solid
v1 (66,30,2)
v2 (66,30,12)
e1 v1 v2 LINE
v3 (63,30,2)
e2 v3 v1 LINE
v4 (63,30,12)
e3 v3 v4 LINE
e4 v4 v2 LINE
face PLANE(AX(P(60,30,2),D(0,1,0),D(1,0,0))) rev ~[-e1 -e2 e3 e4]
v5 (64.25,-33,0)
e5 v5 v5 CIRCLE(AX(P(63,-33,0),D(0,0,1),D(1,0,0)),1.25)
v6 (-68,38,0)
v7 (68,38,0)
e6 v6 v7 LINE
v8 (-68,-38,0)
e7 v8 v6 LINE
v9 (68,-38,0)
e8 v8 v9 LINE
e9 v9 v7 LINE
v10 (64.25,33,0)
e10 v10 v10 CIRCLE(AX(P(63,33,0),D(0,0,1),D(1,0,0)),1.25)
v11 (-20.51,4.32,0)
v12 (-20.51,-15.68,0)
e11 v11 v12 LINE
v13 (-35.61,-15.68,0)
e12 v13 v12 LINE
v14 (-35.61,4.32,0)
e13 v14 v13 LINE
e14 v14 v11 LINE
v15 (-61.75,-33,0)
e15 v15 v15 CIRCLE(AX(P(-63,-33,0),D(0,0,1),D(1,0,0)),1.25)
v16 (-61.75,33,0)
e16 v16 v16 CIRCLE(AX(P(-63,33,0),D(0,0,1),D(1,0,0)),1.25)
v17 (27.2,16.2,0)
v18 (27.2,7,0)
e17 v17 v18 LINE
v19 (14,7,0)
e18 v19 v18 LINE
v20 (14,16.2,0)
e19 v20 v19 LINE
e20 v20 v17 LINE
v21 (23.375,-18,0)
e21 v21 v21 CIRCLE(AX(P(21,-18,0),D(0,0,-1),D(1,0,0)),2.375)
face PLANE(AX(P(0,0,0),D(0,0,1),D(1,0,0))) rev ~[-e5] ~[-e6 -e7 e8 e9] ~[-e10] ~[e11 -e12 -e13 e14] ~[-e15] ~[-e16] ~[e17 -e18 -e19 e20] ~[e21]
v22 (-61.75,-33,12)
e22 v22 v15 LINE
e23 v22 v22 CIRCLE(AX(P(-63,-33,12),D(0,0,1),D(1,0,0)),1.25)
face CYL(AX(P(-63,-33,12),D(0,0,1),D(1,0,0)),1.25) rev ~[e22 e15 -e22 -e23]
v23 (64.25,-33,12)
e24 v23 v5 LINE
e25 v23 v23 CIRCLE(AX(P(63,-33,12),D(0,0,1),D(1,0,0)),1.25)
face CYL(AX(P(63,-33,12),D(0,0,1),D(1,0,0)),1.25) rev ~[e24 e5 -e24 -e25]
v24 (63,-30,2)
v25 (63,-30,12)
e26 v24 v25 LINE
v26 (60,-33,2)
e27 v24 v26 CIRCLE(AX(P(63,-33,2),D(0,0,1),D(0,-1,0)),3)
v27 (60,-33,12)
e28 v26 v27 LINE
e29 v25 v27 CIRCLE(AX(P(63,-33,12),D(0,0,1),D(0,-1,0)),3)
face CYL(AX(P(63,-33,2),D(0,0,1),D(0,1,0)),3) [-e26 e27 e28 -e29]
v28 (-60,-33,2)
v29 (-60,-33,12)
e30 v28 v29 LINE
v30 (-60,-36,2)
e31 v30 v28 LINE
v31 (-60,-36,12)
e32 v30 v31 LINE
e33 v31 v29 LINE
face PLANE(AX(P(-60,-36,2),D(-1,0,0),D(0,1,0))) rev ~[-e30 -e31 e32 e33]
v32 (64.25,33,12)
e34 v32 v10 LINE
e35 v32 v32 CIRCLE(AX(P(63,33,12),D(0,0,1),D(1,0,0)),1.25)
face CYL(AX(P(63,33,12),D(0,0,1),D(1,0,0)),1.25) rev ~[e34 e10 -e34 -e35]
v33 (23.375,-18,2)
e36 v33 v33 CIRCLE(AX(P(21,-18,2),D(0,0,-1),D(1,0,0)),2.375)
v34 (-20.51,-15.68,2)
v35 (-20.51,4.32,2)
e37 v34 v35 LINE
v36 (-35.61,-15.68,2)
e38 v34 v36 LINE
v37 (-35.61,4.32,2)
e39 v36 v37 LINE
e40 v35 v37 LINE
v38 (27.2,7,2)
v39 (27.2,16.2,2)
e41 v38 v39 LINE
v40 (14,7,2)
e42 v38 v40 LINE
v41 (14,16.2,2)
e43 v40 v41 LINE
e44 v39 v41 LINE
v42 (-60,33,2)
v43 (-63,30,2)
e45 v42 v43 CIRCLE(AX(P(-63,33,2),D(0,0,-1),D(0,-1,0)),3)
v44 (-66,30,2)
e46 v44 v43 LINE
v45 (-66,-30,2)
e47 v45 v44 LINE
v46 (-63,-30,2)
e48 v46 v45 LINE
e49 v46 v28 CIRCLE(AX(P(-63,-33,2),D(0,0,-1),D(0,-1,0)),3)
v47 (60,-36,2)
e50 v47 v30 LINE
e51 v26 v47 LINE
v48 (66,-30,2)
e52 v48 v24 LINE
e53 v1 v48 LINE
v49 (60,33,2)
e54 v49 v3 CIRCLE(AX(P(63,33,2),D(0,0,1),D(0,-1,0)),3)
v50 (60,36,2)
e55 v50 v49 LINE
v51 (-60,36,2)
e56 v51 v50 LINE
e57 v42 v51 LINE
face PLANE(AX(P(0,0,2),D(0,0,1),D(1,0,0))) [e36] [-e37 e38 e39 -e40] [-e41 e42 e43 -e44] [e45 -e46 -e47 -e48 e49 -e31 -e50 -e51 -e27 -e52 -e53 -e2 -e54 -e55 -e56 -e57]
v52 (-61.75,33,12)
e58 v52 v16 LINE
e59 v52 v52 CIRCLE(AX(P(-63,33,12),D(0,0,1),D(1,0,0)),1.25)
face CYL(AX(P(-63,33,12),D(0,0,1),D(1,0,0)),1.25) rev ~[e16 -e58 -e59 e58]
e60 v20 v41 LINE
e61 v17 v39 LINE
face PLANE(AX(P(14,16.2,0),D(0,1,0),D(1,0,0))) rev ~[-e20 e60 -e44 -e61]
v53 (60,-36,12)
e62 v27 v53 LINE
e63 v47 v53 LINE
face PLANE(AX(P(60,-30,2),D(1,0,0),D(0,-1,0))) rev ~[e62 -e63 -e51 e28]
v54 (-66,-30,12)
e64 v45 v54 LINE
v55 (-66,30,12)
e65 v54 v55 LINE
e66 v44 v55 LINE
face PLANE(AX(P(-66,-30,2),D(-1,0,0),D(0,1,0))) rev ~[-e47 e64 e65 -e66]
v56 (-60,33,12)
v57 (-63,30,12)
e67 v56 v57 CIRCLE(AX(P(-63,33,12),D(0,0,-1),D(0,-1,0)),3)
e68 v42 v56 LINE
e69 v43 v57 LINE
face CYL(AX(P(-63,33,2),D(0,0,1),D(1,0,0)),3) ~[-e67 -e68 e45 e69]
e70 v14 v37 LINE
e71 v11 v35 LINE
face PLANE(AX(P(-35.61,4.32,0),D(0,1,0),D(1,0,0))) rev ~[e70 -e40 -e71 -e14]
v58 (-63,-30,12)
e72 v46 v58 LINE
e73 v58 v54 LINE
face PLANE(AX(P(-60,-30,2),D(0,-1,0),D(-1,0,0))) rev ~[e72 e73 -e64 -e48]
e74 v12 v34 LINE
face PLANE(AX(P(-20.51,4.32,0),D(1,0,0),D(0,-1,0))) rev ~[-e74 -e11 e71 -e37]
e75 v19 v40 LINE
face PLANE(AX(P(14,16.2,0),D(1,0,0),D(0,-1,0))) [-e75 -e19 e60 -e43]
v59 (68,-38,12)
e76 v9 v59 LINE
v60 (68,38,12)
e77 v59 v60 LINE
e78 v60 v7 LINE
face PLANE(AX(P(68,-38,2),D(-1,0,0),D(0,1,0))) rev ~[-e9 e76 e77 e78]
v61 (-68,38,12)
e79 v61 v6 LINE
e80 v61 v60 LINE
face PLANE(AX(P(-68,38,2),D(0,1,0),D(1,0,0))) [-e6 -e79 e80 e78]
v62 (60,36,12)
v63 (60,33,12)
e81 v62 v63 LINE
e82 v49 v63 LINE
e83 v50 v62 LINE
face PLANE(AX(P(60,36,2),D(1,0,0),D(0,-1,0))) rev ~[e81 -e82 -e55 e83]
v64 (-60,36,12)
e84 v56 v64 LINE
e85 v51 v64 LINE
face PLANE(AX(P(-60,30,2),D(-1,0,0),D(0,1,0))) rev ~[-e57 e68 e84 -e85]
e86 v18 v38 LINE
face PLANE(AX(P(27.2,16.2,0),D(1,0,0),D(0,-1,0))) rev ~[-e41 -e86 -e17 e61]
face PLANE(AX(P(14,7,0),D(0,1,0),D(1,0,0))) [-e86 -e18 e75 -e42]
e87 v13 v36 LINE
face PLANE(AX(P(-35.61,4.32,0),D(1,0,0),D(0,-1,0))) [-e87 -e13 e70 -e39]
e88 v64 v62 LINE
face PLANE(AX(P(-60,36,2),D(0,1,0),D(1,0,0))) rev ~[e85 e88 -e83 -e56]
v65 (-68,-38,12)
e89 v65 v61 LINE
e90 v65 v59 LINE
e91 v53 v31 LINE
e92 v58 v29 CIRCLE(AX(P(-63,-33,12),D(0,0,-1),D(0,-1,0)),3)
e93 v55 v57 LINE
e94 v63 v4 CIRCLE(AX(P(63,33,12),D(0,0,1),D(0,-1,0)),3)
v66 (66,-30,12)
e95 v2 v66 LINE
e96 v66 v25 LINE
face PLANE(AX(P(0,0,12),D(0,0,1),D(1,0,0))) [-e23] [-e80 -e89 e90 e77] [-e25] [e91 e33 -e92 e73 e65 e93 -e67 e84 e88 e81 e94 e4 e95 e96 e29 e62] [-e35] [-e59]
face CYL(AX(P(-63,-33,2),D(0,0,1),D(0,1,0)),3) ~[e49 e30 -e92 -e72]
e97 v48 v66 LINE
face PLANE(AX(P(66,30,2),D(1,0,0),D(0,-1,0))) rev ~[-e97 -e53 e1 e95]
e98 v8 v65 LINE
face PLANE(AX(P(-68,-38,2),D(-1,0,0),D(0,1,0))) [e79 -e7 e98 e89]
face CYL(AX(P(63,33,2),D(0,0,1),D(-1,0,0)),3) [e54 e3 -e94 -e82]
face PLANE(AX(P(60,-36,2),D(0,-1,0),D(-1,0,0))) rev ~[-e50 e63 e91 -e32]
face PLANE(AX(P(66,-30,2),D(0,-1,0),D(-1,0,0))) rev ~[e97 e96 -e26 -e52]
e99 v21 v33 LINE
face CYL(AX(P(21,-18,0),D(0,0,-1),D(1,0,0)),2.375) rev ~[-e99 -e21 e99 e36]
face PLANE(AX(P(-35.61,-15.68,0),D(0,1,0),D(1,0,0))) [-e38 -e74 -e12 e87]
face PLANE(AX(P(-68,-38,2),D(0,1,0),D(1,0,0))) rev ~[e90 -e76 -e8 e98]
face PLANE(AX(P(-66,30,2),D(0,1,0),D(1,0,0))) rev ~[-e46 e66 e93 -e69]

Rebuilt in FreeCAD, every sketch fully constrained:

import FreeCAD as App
import Part
import Sketcher
from FreeCAD import Vector
Q = App.Units.Quantity


def edges_at(feature, points):
    """Names of the edges that pass closest to the given points."""
    edges = feature.Shape.Edges
    near = lambda p: min(range(len(edges)), key=lambda i: edges[i].distToShape(Part.Vertex(*p))[0])
    return sorted({f"Edge{near(p) + 1}" for p in points})


def add_polygon(sketch, points):
    """Adds a closed chain of lines whose ends are joined by coincident constraints."""
    first, n = sketch.GeometryCount, len(points)
    for a, b in zip(points, points[1:] + points[:1]):
        sketch.addGeometry(Part.LineSegment(App.Vector(*a, 0), App.Vector(*b, 0)), False)
    for i in range(n):
        sketch.addConstraint(Sketcher.Constraint("Coincident", first + i, 2, first + (i + 1) % n, 1))

doc = App.newDocument("Part")
body = doc.addObject("PartDesign::Body", "Body")

# Sketch on XY plane
sketch1 = body.newObject("Sketcher::SketchObject", "Sketch")
sketch1.AttachmentSupport = (doc.getObject("XY_Plane"), [""])
sketch1.MapMode = "FlatFace"
add_polygon(sketch1, [(-68, 38), (-68, -38), (68, -38), (68, 38)])  # lines 0-3
sketch1.addConstraint([
    Sketcher.Constraint("Vertical", 0),
    Sketcher.Constraint("Horizontal", 1),
    Sketcher.Constraint("Vertical", 2),
    Sketcher.Constraint("Horizontal", 3),
    Sketcher.Constraint("Symmetric", 0, 2, 2, 2, -1, 1),
    Sketcher.Constraint("DistanceX", 1, 1, 1, 2, Q("136 mm")),
    Sketcher.Constraint("DistanceY", 0, 2, 0, 1, Q("76 mm")),
])
pad1 = body.newObject("PartDesign::Pad", "Pad")
pad1.Profile = sketch1
pad1.Length = 2

# Sketch on XY plane
sketch2 = body.newObject("Sketcher::SketchObject", "Sketch001")
sketch2.AttachmentSupport = (doc.getObject("XY_Plane"), [""])
sketch2.MapMode = "FlatFace"
sketch2.AttachmentOffset = App.Placement(Vector(0, 0, 2), App.Rotation())
add_polygon(sketch2, [(-68, 38), (-68, -38), (68, -38), (68, 38)])  # lines 0-3
add_polygon(sketch2, [(-60, 30), (-60, 36), (60, 36), (60, 30), (66, 30), (66, -30), (60, -30), (60, -36), (-60, -36), (-60, -30), (-66, -30), (-66, 30)])  # lines 4-15
sketch2.addConstraint([
    Sketcher.Constraint("Vertical", 0),
    Sketcher.Constraint("Horizontal", 1),
    Sketcher.Constraint("Vertical", 2),
    Sketcher.Constraint("Horizontal", 3),
    Sketcher.Constraint("Vertical", 4),
    Sketcher.Constraint("Horizontal", 5),
    Sketcher.Constraint("Vertical", 6),
    Sketcher.Constraint("Horizontal", 7),
    Sketcher.Constraint("Vertical", 8),
    Sketcher.Constraint("Horizontal", 9),
    Sketcher.Constraint("Vertical", 10),
    Sketcher.Constraint("Horizontal", 11),
    Sketcher.Constraint("Vertical", 12),
    Sketcher.Constraint("Horizontal", 13),
    Sketcher.Constraint("Vertical", 14),
    Sketcher.Constraint("Horizontal", 15),
    Sketcher.Constraint("Symmetric", 0, 2, 2, 2, -1, 1),
    Sketcher.Constraint("Symmetric", 4, 2, 10, 2, -1, 1),
    Sketcher.Constraint("Symmetric", 6, 2, 12, 2, -1, 1),
    Sketcher.Constraint("Symmetric", 8, 2, 14, 2, -1, 1),
    Sketcher.Constraint("Symmetric", 9, 2, 12, 2, -2),
    Sketcher.Constraint("Equal", 15, 4),
    Sketcher.Constraint("DistanceX", 1, 1, 1, 2, Q("136 mm")),
    Sketcher.Constraint("DistanceX", 5, 1, 5, 2, Q("120 mm")),
    Sketcher.Constraint("DistanceX", 7, 1, 7, 2, Q("6 mm")),
    Sketcher.Constraint("DistanceY", 0, 2, 0, 1, Q("76 mm")),
    Sketcher.Constraint("DistanceY", 8, 2, 8, 1, Q("60 mm")),
])
pad2 = body.newObject("PartDesign::Pad", "Pad001")
pad2.Profile = sketch2
pad2.Length = 10

# Sketch on XY plane
sketch3 = body.newObject("Sketcher::SketchObject", "Sketch002")
sketch3.AttachmentSupport = (doc.getObject("XY_Plane"), [""])
sketch3.MapMode = "FlatFace"
sketch3.AttachmentOffset = App.Placement(Vector(0, 0, 12), App.Rotation())
sketch3.addGeometry([
    Part.Circle(Vector(-63, 33, 0), Vector(0, 0, 1), 1.2),
    Part.Circle(Vector(-63, -33, 0), Vector(0, 0, 1), 1.2),
    Part.Circle(Vector(63, 33, 0), Vector(0, 0, 1), 1.2),
    Part.Circle(Vector(63, -33, 0), Vector(0, 0, 1), 1.2),
], False)
sketch3.addConstraint([
    Sketcher.Constraint("Equal", 0, 1),
    Sketcher.Constraint("Equal", 1, 2),
    Sketcher.Constraint("Equal", 2, 3),
    Sketcher.Constraint("Symmetric", 1, 3, 2, 3, -1, 1),
    Sketcher.Constraint("Symmetric", 0, 3, 3, 3, -1, 1),
    Sketcher.Constraint("Symmetric", 0, 3, 2, 3, -2),
    Sketcher.Constraint("Diameter", 0, Q("2.5 mm")),
    Sketcher.Constraint("DistanceX", 0, 3, -1, 1, Q("63 mm")),
    Sketcher.Constraint("DistanceY", -1, 1, 0, 3, Q("33 mm")),
])
pocket1 = body.newObject("PartDesign::Pocket", "Pocket")
pocket1.Profile = sketch3
pocket1.Length = 13

# Sketch on XY plane
sketch4 = body.newObject("Sketcher::SketchObject", "Sketch003")
sketch4.AttachmentSupport = (doc.getObject("XY_Plane"), [""])
sketch4.MapMode = "FlatFace"
sketch4.addGeometry(Part.Circle(Vector(21, -18, 0), Vector(0, 0, 1), 2.4), False)  # 0
add_polygon(sketch4, [(-35.6, -15.7), (-35.6, 4.3), (-20.5, 4.3), (-20.5, -15.7)])  # lines 1-4
add_polygon(sketch4, [(14, 7), (14, 16.2), (27.2, 16.2), (27.2, 7)])  # lines 5-8
sketch4.addConstraint([
    Sketcher.Constraint("Vertical", 1),
    Sketcher.Constraint("Horizontal", 2),
    Sketcher.Constraint("Vertical", 3),
    Sketcher.Constraint("Horizontal", 4),
    Sketcher.Constraint("Vertical", 5),
    Sketcher.Constraint("Horizontal", 6),
    Sketcher.Constraint("Vertical", 7),
    Sketcher.Constraint("Horizontal", 8),
    Sketcher.Constraint("Diameter", 0, Q("4.75 mm")),
    Sketcher.Constraint("DistanceY", 1, 1, 1, 2, Q("20 mm")),
    Sketcher.Constraint("DistanceX", 2, 1, 2, 2, Q("15.1 mm")),
    Sketcher.Constraint("DistanceX", 6, 1, 6, 2, Q("13.2 mm")),
    Sketcher.Constraint("DistanceY", 5, 1, 5, 2, Q("9.2 mm")),
    Sketcher.Constraint("DistanceX", -1, 1, 0, 3, Q("21 mm")),
    Sketcher.Constraint("DistanceY", 0, 3, -1, 1, Q("18 mm")),
    Sketcher.Constraint("DistanceX", -1, 1, 5, 2, Q("14 mm")),
    Sketcher.Constraint("DistanceY", -1, 1, 7, 2, Q("7 mm")),
    Sketcher.Constraint("DistanceX", 1, 2, -1, 1, Q("35.61 mm")),
    Sketcher.Constraint("DistanceY", -1, 1, 1, 2, Q("4.32 mm")),
])
pocket2 = body.newObject("PartDesign::Pocket", "Pocket001")
pocket2.Profile = sketch4
pocket2.Length = 3
pocket2.Reversed = True
doc.recompute()

fillet = body.newObject("PartDesign::Fillet", "Fillet")
fillet.Base = (pocket2, edges_at(pocket2, [
    (60, 30, 7),
    (-60, 30, 7),
    (60, -30, 7),
    (-60, -30, 7),
]))
fillet.Radius = 3

doc.recompute()
